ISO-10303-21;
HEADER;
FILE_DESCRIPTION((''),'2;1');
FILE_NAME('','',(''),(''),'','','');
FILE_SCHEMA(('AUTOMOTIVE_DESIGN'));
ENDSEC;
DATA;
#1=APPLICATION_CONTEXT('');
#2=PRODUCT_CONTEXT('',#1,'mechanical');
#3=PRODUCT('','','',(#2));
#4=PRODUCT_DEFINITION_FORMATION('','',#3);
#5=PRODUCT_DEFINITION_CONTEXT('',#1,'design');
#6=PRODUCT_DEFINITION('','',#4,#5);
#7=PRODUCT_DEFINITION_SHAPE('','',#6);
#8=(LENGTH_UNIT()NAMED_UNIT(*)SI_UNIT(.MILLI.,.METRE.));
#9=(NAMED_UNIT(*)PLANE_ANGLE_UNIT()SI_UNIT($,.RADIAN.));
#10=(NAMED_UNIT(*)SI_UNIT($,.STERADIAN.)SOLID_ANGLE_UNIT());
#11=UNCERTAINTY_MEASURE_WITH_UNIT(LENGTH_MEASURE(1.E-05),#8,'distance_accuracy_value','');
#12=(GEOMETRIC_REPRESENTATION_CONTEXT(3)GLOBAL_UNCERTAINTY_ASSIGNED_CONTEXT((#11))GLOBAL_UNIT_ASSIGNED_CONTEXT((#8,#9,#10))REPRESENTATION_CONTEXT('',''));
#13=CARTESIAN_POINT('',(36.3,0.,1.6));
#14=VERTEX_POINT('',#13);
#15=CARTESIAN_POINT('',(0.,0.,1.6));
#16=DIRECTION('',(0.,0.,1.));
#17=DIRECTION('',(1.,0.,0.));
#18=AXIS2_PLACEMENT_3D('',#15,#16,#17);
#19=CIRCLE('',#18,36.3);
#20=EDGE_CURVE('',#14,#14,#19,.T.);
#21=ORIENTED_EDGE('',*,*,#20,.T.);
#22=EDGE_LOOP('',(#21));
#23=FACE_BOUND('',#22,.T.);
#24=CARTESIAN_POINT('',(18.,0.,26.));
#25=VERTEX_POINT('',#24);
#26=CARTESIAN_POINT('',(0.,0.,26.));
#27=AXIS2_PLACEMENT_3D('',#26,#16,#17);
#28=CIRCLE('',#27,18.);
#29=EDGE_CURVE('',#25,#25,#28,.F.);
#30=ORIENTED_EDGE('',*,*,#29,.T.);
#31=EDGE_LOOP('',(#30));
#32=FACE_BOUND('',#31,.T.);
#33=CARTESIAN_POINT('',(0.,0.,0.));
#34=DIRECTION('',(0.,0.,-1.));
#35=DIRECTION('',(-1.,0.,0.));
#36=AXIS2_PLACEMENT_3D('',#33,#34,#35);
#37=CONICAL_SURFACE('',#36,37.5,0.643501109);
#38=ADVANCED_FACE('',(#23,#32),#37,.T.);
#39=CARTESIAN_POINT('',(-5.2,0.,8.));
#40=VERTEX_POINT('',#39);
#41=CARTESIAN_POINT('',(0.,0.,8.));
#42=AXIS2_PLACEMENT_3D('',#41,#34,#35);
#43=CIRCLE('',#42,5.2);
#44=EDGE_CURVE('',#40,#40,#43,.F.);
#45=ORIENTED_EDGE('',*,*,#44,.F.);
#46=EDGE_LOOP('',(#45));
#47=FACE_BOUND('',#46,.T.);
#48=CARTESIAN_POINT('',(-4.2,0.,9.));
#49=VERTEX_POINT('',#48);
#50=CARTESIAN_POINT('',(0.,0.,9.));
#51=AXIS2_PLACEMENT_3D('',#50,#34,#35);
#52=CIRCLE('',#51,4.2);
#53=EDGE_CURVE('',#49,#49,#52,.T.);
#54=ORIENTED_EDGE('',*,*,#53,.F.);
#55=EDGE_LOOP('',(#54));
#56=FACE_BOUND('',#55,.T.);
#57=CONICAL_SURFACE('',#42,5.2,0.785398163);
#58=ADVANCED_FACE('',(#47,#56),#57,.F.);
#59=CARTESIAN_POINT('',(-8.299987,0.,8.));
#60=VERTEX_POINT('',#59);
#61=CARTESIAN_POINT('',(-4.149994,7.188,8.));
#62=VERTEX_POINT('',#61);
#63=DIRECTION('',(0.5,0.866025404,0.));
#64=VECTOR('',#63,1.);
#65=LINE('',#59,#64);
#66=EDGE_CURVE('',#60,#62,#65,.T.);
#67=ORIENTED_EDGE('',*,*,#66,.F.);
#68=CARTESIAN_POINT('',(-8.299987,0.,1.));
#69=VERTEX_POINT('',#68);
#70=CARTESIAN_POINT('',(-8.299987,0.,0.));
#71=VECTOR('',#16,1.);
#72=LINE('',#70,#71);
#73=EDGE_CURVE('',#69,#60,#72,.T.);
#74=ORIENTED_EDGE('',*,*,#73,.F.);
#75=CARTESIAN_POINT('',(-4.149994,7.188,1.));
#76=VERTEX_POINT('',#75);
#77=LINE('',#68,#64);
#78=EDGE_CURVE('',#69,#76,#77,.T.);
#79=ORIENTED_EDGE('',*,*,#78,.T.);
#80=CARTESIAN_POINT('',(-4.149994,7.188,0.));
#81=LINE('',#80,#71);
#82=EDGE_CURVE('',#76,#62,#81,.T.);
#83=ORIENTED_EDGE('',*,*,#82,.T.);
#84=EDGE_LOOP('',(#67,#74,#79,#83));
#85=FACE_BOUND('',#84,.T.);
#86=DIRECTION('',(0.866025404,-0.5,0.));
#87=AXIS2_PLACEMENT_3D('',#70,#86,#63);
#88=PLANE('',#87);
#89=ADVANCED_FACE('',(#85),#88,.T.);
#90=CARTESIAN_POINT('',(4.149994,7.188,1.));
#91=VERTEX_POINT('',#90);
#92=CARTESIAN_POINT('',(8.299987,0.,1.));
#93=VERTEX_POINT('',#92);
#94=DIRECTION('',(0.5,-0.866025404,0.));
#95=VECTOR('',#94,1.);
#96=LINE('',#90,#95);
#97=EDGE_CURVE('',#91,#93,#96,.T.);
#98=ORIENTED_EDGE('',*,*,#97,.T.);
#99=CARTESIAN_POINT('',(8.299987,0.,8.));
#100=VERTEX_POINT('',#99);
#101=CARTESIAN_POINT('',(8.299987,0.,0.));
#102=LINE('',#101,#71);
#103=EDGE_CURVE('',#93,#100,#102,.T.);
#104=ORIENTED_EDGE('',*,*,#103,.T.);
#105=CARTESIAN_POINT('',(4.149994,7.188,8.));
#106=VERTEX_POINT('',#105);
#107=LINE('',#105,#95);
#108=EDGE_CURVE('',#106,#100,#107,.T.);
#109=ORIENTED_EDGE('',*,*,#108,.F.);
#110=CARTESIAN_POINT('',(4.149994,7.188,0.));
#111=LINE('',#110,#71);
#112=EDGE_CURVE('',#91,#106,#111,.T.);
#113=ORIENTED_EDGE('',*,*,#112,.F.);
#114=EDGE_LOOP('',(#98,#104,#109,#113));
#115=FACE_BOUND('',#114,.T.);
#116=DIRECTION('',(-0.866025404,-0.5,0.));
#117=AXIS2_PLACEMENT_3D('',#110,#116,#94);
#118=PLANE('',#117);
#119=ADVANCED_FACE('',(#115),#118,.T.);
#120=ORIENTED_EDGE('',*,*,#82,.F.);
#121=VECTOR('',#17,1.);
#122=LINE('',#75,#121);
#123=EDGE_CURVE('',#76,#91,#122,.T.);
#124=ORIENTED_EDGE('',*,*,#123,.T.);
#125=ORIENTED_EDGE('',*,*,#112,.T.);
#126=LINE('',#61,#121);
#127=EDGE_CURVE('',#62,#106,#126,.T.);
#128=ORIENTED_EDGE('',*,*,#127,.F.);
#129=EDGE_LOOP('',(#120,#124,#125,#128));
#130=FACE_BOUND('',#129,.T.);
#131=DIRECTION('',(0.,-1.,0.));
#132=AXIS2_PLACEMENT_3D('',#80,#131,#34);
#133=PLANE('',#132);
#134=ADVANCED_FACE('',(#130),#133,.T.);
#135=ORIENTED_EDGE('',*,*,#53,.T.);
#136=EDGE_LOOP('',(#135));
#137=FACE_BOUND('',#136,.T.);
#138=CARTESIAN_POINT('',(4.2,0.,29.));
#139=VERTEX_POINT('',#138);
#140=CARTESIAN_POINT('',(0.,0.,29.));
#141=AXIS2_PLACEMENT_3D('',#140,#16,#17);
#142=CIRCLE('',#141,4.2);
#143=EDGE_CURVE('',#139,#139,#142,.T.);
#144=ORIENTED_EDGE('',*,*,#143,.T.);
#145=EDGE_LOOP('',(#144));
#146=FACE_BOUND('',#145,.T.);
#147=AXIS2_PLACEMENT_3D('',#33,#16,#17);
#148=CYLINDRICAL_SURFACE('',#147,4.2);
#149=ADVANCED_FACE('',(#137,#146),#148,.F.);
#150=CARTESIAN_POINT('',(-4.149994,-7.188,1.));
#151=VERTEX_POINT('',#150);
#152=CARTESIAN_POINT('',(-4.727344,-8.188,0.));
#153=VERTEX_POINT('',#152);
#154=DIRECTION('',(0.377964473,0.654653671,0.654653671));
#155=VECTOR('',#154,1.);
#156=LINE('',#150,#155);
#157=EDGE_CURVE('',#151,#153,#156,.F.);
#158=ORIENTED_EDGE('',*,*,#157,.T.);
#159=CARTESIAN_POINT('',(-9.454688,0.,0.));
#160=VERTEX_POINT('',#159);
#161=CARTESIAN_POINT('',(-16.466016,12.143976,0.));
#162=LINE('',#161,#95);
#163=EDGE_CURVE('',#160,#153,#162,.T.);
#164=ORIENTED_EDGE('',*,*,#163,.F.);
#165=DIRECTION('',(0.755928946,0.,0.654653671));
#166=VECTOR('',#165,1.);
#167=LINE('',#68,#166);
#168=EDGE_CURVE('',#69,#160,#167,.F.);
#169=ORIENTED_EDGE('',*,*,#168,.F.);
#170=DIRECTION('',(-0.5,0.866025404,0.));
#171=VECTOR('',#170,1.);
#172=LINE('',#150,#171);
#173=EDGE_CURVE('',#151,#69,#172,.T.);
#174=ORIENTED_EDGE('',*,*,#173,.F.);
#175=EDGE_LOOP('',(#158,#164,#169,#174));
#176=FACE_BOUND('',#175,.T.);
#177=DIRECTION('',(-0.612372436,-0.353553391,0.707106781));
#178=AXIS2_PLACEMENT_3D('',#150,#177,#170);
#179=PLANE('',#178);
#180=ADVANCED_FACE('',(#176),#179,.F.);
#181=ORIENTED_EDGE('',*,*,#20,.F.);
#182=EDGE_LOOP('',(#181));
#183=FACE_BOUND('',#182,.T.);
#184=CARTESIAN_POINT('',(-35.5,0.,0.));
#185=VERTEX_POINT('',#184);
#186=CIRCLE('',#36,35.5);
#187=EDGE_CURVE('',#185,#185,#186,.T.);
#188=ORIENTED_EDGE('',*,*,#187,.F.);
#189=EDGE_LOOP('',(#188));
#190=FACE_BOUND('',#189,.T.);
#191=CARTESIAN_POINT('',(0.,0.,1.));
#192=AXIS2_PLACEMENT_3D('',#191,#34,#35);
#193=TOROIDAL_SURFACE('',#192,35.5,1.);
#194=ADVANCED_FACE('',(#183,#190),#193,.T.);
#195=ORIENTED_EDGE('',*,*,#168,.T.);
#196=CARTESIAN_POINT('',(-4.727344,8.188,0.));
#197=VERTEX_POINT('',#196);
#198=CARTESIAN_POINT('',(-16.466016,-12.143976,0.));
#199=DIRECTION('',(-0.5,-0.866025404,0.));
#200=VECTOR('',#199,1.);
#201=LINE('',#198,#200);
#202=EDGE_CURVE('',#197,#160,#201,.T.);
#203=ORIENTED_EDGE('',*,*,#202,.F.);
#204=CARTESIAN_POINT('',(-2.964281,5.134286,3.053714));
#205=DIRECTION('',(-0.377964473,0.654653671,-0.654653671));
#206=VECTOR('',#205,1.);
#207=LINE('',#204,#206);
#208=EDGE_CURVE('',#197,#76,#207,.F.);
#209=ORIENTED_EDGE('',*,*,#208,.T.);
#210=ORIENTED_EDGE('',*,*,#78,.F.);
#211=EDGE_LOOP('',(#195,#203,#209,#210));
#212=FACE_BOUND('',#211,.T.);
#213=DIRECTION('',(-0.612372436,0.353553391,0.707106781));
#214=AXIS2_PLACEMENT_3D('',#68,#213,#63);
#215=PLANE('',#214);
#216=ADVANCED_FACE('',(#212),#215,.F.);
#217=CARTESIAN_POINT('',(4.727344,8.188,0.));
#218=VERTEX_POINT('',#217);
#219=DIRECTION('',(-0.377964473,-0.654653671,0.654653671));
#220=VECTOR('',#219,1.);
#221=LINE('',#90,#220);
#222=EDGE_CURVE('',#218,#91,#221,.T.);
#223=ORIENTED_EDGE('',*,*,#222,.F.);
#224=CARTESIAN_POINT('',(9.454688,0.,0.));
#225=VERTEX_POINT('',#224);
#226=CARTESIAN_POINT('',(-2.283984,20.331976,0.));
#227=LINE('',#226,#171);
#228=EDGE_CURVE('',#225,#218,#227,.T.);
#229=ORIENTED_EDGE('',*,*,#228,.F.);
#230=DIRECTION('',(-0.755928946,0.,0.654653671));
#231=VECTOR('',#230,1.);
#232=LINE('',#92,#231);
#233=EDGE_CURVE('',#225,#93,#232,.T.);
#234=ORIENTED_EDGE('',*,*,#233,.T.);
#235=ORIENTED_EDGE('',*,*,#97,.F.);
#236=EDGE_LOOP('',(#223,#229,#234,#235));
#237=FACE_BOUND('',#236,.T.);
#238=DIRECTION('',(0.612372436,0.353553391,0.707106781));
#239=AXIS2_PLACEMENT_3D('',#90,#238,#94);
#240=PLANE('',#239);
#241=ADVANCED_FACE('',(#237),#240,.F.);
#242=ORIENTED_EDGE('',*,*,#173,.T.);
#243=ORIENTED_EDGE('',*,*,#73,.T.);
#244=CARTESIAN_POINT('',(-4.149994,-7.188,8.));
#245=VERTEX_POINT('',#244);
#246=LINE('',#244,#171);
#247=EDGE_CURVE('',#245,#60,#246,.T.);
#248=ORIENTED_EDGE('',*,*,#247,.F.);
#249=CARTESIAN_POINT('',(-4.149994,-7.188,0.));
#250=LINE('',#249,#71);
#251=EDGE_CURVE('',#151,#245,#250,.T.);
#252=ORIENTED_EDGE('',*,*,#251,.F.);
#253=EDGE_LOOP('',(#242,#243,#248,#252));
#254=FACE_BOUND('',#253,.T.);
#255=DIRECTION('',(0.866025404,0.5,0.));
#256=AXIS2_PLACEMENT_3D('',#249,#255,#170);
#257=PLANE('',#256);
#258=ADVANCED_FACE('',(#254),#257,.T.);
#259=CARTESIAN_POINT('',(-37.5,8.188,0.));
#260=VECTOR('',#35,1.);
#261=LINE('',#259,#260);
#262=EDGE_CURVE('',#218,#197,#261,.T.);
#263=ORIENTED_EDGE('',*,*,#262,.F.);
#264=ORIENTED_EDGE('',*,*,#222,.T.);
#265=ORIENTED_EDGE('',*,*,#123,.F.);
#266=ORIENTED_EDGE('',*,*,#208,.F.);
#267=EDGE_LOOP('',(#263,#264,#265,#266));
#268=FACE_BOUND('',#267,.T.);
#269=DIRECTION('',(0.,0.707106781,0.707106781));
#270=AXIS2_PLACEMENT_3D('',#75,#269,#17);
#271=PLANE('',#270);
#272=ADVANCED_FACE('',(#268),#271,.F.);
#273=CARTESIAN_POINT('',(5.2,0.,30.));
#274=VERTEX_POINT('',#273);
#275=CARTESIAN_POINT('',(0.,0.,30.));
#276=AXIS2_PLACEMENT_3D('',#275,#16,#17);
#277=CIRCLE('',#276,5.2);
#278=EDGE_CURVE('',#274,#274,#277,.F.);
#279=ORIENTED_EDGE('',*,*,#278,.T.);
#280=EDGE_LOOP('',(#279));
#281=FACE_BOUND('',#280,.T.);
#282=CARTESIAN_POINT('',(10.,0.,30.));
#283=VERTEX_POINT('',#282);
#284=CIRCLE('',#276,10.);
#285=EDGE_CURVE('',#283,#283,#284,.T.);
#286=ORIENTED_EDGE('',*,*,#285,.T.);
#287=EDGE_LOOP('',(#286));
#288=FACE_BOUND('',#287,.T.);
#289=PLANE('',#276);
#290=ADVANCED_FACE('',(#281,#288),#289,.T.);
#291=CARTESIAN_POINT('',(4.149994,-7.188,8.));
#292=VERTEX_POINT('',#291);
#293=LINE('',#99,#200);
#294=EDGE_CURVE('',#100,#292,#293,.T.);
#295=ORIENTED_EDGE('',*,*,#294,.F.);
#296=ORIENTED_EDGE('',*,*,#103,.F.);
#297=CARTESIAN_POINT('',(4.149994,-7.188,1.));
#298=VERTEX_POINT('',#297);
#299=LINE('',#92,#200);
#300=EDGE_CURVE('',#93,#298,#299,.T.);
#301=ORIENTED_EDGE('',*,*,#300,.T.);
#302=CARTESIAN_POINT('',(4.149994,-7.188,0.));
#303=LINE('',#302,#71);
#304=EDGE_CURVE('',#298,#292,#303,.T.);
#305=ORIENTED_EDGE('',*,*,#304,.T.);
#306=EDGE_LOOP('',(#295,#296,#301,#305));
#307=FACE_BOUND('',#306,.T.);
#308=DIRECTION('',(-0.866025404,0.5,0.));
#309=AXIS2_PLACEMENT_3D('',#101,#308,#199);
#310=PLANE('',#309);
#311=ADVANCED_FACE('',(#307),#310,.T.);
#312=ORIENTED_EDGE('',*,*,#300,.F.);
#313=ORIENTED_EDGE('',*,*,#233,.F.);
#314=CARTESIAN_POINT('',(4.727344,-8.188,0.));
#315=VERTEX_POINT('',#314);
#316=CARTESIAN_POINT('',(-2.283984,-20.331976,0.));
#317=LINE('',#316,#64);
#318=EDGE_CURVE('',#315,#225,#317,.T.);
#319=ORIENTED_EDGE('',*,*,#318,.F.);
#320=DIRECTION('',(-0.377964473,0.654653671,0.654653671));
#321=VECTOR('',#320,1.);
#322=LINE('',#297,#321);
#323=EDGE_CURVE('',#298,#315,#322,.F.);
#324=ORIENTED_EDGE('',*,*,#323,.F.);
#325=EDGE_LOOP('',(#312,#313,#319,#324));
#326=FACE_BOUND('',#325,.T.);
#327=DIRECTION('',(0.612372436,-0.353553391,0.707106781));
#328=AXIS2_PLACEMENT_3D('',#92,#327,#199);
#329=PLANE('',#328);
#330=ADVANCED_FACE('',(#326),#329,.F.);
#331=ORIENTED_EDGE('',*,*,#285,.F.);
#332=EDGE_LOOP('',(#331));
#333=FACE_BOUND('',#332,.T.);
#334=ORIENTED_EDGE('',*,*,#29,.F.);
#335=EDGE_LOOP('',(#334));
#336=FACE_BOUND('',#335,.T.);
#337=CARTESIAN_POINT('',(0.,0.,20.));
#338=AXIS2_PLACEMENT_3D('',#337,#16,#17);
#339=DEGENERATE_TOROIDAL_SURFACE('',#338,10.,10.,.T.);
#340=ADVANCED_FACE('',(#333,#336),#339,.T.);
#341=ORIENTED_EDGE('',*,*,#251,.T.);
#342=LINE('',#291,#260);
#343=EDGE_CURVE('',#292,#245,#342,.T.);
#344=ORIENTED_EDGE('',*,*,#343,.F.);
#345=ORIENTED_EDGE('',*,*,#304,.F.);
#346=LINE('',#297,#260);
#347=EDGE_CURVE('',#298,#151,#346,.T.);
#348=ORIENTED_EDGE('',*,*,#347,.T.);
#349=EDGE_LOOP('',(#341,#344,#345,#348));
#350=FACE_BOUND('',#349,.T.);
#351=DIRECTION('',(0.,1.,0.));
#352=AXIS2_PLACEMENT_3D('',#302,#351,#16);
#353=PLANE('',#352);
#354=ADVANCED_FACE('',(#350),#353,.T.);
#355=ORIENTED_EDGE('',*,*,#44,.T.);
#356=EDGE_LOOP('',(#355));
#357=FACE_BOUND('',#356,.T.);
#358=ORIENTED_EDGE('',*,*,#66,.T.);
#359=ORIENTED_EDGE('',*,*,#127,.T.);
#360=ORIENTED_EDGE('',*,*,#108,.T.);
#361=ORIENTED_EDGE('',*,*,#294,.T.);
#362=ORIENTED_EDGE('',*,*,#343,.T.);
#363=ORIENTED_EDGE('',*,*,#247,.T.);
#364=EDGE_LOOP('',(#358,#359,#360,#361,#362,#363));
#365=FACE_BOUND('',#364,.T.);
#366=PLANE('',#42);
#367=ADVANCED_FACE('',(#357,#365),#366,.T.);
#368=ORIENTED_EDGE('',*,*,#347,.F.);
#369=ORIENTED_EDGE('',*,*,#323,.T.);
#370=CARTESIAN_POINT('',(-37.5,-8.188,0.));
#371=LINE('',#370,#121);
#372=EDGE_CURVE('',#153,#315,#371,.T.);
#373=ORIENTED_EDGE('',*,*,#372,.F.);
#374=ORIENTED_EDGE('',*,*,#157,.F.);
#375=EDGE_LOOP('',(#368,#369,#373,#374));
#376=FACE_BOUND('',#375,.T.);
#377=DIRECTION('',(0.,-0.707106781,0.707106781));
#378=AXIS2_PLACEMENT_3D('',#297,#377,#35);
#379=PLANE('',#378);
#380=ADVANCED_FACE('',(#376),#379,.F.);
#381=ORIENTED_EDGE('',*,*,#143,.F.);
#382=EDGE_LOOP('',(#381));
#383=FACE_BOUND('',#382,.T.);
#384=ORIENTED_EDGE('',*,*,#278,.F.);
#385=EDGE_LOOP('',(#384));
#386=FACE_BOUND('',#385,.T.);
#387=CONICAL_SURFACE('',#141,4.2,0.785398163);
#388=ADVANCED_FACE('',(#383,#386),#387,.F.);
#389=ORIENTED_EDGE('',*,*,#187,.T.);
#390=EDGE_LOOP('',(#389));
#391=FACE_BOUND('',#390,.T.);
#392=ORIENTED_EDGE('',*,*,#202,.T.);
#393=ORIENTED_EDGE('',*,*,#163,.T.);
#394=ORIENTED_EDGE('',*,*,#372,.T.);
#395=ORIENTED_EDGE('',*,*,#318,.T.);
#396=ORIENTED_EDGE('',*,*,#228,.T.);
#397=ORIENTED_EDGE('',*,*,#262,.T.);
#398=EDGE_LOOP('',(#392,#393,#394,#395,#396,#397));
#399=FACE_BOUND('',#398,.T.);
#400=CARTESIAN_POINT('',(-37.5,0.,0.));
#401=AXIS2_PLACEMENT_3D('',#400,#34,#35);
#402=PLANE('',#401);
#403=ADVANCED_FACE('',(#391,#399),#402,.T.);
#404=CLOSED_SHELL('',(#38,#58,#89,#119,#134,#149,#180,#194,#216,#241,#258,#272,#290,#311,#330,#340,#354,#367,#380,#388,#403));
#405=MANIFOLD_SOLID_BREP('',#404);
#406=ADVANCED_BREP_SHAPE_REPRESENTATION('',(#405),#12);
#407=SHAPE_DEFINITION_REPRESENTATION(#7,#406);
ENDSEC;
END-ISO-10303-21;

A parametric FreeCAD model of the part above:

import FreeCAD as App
import Part
import Sketcher

V = App.Vector
Q = App.Units.Quantity


def edges_at(feature, points):
    """Names of the edges that pass closest to the given points."""
    edges = feature.Shape.Edges
    near = lambda p: min(range(len(edges)), key=lambda i: edges[i].distToShape(Part.Vertex(*p))[0])
    return sorted({f"Edge{near(p) + 1}" for p in points})


def add_polygon(sketch, points):
    """Adds a closed chain of lines whose ends are joined by coincident constraints."""
    first, n = sketch.GeometryCount, len(points)
    for a, b in zip(points, points[1:] + points[:1]):
        sketch.addGeometry(Part.LineSegment(App.Vector(*a, 0), App.Vector(*b, 0)), False)
    for i in range(n):
        sketch.addConstraint(Sketcher.Constraint("Coincident", first + i, 2, first + (i + 1) % n, 1))

doc = App.newDocument("Part")
body = doc.addObject("PartDesign::Body", "Body")

# Sketch on XZ plane
sketch1 = doc.addObject("Sketcher::SketchObject", "Sketch")
body.addObject(sketch1)
sketch1.AttachmentSupport = (doc.XZ_Plane, [""])
sketch1.MapMode = "FlatFace"
add_polygon(sketch1, [(0, 0), (-37.5, 0), (-15, 30), (0, 30)])  # lines 0-3
sketch1.addConstraint([
    Sketcher.Constraint("Horizontal", 0),
    Sketcher.Constraint("Horizontal", 2),
    Sketcher.Constraint("Vertical", 3),
    Sketcher.Constraint("Coincident", 3, 2, -1, 1),
    Sketcher.Constraint("DistanceX", 2, 1, 2, 2, Q("15 mm")),
    Sketcher.Constraint("DistanceY", 3, 2, 3, 1, Q("30 mm")),
    Sketcher.Constraint("DistanceX", 0, 2, 0, 1, Q("37.5 mm")),
])
revolution = doc.addObject("PartDesign::Revolution", "Revolution")
body.addObject(revolution)
revolution.Profile = sketch1
revolution.ReferenceAxis = (sketch1, ["V_Axis"])
revolution.Angle = 360
doc.recompute()

fillet = doc.addObject("PartDesign::Fillet", "Fillet")
body.addObject(fillet)
fillet.Base = (revolution, edges_at(revolution, [(37.5, 0, 0)]))
fillet.Radius = 1
doc.recompute()

fillet2 = doc.addObject("PartDesign::Fillet", "Fillet001")
body.addObject(fillet2)
fillet2.Base = (fillet, edges_at(fillet, [(15, 0, 30)]))
fillet2.Radius = 10

# Sketch on XY plane
sketch2 = doc.addObject("Sketcher::SketchObject", "Sketch001")
body.addObject(sketch2)
sketch2.AttachmentSupport = (doc.XY_Plane, [""])
sketch2.MapMode = "FlatFace"
sketch2.AttachmentOffset = App.Placement(V(0, 0, 30), App.Rotation())
sketch2.addGeometry(Part.Circle(V(0, 0, 0), V(0, 0, 1), 4.2), False)
sketch2.addConstraint([
    Sketcher.Constraint("Coincident", 0, 3, -1, 1),
    Sketcher.Constraint("Diameter", 0, Q("8.4 mm")),
])
pocket1 = doc.addObject("PartDesign::Pocket", "Pocket")
body.addObject(pocket1)
pocket1.Profile = sketch2
pocket1.Type = "ThroughAll"

# Sketch on XY plane
sketch3 = doc.addObject("Sketcher::SketchObject", "Sketch002")
body.addObject(sketch3)
sketch3.AttachmentSupport = (doc.XY_Plane, [""])
sketch3.MapMode = "FlatFace"
sketch3.AttachmentOffset = App.Placement(V(0, 0, 8), App.Rotation())
add_polygon(sketch3, [(8.299987, 0), (4.149994, -7.188), (-4.149994, -7.188), (-8.299987, 0), (-4.149994, 7.188), (4.149994, 7.188)])  # lines 0-5
sketch3.addConstraint([
    Sketcher.Constraint("Horizontal", 1),
    Sketcher.Constraint("Horizontal", 4),
    Sketcher.Constraint("Symmetric", 0, 2, 3, 2, -1, 1),
    Sketcher.Constraint("Symmetric", 2, 2, 5, 2, -1, 1),
    Sketcher.Constraint("PointOnObject", 2, 2, -1),
    Sketcher.Constraint("Parallel", 2, 5),
    Sketcher.Constraint("Vertical", 1, 2, 3, 2),
    Sketcher.Constraint("Angle", 0, Q("-120 deg")),
    Sketcher.Constraint("DistanceY", 0, 2, -1, 1, Q("7.188 mm")),
    Sketcher.Constraint("DistanceX", 1, 2, 1, 1, Q("8.299987 mm")),
])
pocket2 = doc.addObject("PartDesign::Pocket", "Pocket001")
body.addObject(pocket2)
pocket2.Profile = sketch3
pocket2.Type = "ThroughAll"
doc.recompute()

chamfer = doc.addObject("PartDesign::Chamfer", "Chamfer")
body.addObject(chamfer)
chamfer.Base = (pocket2, edges_at(pocket2, [
    (-4.2, 0, 30),
    (6.225, 3.594, 0),
    (6.225, -3.594, 0),
    (0, -7.188, 0),
    (-6.225, -3.594, 0),
    (-6.225, 3.594, 0),
    (0, 7.188, 0),
    (-4.2, 0, 8),
]))
chamfer.Size = 1

doc.recompute()
